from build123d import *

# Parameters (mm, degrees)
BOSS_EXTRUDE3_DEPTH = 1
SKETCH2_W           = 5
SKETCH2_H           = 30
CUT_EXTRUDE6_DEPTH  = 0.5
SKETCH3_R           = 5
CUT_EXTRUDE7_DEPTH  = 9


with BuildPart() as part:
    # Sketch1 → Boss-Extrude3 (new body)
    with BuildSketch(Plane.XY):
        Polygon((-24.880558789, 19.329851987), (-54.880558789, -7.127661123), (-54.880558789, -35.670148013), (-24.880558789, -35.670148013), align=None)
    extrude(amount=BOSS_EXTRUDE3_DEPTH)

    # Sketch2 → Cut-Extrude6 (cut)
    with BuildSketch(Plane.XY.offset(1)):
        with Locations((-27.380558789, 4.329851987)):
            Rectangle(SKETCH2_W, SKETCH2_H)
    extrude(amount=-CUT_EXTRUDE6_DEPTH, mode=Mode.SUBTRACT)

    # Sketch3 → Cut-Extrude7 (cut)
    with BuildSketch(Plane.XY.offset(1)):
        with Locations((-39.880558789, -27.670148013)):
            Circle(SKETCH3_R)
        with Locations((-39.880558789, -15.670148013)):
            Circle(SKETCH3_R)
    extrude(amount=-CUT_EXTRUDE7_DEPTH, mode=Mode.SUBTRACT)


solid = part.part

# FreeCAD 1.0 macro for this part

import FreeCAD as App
import Part
import Sketcher
Q = App.Units.Quantity

doc = App.newDocument("Part")
body = doc.addObject("PartDesign::Body", "Body")

# Sketch on XY plane
sketch1 = body.newObject("Sketcher::SketchObject", "Sketch")
sketch1.AttachmentSupport = (doc.getObject("XY_Plane"), [""])
sketch1.MapMode = "FlatFace"
sketch1.addGeometry([
    Part.LineSegment(App.Vector(-25, 19, 0), App.Vector(-55, -7, 0)),
    Part.LineSegment(App.Vector(-55, -7, 0), App.Vector(-55, -36, 0)),
    Part.LineSegment(App.Vector(-55, -36, 0), App.Vector(-25, -36, 0)),
    Part.LineSegment(App.Vector(-25, -36, 0), App.Vector(-25, 19, 0)),
], False)
sketch1.addConstraint([
    Sketcher.Constraint("Coincident", 0, 2, 1, 1),
    Sketcher.Constraint("Coincident", 1, 2, 2, 1),
    Sketcher.Constraint("Coincident", 2, 2, 3, 1),
    Sketcher.Constraint("Coincident", 3, 2, 0, 1),
    Sketcher.Constraint("Vertical", 1),
    Sketcher.Constraint("Horizontal", 2),
    Sketcher.Constraint("Vertical", 3),
    Sketcher.Constraint("DistanceX", 2, 1, 2, 2, Q("30 mm")),
    Sketcher.Constraint("DistanceY", 3, 1, 3, 2, Q("55 mm")),
    Sketcher.Constraint("Distance", 0, Q("40 mm")),
    Sketcher.Constraint("DistanceX", 0, 2, -1, 1, Q("54.880559 mm")),
    Sketcher.Constraint("DistanceY", 0, 2, -1, 1, Q("7.127661 mm")),
])
pad1 = body.newObject("PartDesign::Pad", "Pad")
pad1.Profile = sketch1
pad1.Length = 1

# Sketch on XY plane
sketch2 = body.newObject("Sketcher::SketchObject", "Sketch001")
sketch2.AttachmentSupport = (doc.getObject("XY_Plane"), [""])
sketch2.MapMode = "FlatFace"
sketch2.AttachmentOffset = App.Placement(App.Vector(0, 0, 1), App.Rotation())
sketch2.addGeometry([
    Part.LineSegment(App.Vector(-30, 19, 0), App.Vector(-30, -11, 0)),
    Part.LineSegment(App.Vector(-30, -11, 0), App.Vector(-25, -11, 0)),
    Part.LineSegment(App.Vector(-25, -11, 0), App.Vector(-25, 19, 0)),
    Part.LineSegment(App.Vector(-25, 19, 0), App.Vector(-30, 19, 0)),
], False)
sketch2.addConstraint([
    Sketcher.Constraint("Coincident", 0, 2, 1, 1),
    Sketcher.Constraint("Coincident", 1, 2, 2, 1),
    Sketcher.Constraint("Coincident", 2, 2, 3, 1),
    Sketcher.Constraint("Coincident", 3, 2, 0, 1),
    Sketcher.Constraint("Vertical", 0),
    Sketcher.Constraint("Horizontal", 1),
    Sketcher.Constraint("Vertical", 2),
    Sketcher.Constraint("Horizontal", 3),
    Sketcher.Constraint("DistanceX", 1, 1, 1, 2, Q("5 mm")),
    Sketcher.Constraint("DistanceY", 0, 2, 0, 1, Q("30 mm")),
    Sketcher.Constraint("DistanceX", 0, 2, -1, 1, Q("29.880559 mm")),
    Sketcher.Constraint("DistanceY", 0, 2, -1, 1, Q("10.670148 mm")),
])
pocket1 = body.newObject("PartDesign::Pocket", "Pocket")
pocket1.Profile = sketch2
pocket1.Length = 0.5

# Sketch on XY plane
sketch3 = body.newObject("Sketcher::SketchObject", "Sketch002")
sketch3.AttachmentSupport = (doc.getObject("XY_Plane"), [""])
sketch3.MapMode = "FlatFace"
sketch3.AttachmentOffset = App.Placement(App.Vector(0, 0, 1), App.Rotation())
sketch3.addGeometry([
    Part.Circle(App.Vector(-40, -28, 0), App.Vector(0, 0, 1), 5),
    Part.Circle(App.Vector(-40, -16, 0), App.Vector(0, 0, 1), 5),
], False)
sketch3.addConstraint([
    Sketcher.Constraint("Equal", 0, 1),
    Sketcher.Constraint("Vertical", 0, 3, 1, 3),
    Sketcher.Constraint("Diameter", 0, Q("10 mm")),
    Sketcher.Constraint("DistanceY", 0, 3, 1, 3, Q("12 mm")),
    Sketcher.Constraint("DistanceX", 0, 3, -1, 1, Q("39.880559 mm")),
    Sketcher.Constraint("DistanceY", 0, 3, -1, 1, Q("27.670148 mm")),
])
pocket2 = body.newObject("PartDesign::Pocket", "Pocket001")
pocket2.Profile = sketch3
pocket2.Length = 9

doc.recompute()
